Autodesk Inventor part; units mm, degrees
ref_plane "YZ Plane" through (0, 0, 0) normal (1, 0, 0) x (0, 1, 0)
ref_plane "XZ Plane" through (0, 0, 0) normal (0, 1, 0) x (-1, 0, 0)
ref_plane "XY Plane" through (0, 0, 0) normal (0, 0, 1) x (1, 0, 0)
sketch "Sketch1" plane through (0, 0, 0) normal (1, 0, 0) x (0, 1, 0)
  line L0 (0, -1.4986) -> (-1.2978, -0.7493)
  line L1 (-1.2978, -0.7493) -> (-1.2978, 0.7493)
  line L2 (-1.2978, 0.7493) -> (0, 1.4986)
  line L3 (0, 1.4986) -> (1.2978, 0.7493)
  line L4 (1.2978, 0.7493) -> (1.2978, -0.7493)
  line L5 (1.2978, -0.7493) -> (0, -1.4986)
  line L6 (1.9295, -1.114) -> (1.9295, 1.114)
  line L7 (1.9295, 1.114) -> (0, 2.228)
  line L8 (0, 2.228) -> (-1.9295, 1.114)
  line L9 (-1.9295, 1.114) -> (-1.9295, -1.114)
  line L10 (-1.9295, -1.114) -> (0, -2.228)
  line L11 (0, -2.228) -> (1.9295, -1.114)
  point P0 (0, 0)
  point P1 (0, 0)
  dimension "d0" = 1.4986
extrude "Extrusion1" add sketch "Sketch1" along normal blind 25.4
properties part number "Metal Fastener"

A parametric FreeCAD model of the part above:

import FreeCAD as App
import Part
import Sketcher
from FreeCAD import Vector
Q = App.Units.Quantity


def add_polygon(sketch, points):
    """Adds a closed chain of lines whose ends are joined by coincident constraints."""
    first, n = sketch.GeometryCount, len(points)
    for a, b in zip(points, points[1:] + points[:1]):
        sketch.addGeometry(Part.LineSegment(App.Vector(*a, 0), App.Vector(*b, 0)), False)
    for i in range(n):
        sketch.addConstraint(Sketcher.Constraint("Coincident", first + i, 2, first + (i + 1) % n, 1))

doc = App.newDocument("Part")
params = doc.addObject("Spreadsheet::Sheet", "Params")
for row, (alias, value) in enumerate([
    ("sketch1_height", "0.059 in"),
    ("sketch1_length", "0.059 in"),
    ("pad1_length", "1 in"),
], start=1):
    params.set(f"A{row}", alias)
    params.set(f"B{row}", "=" + value)
    params.setAlias(f"B{row}", alias)

body = doc.addObject("PartDesign::Body", "Body")

sketch1 = doc.addObject("Sketcher::SketchObject", "Sketch")
body.addObject(sketch1)
sketch1.AttachmentSupport = (doc.YZ_Plane, [""])
sketch1.MapMode = "FlatFace"
add_polygon(sketch1, [(0, -2.2), (1.9, -1.1), (1.9, 1.1), (0, 2.2), (-1.9, 1.1), (-1.9, -1.1)])
add_polygon(sketch1, [(1.3, -0.7), (0, -1.5), (-1.3, -0.7), (-1.3, 0.7), (0, 1.5), (1.3, 0.7)])
sketch1.addConstraint(Sketcher.Constraint("Vertical", 1))
sketch1.addConstraint(Sketcher.Constraint("Vertical", 4))
sketch1.addConstraint(Sketcher.Constraint("Vertical", 8))
sketch1.addConstraint(Sketcher.Constraint("Vertical", 11))
sketch1.addConstraint(Sketcher.Constraint("Symmetric", 0, 2, 3, 2, -1, 1))
sketch1.addConstraint(Sketcher.Constraint("Symmetric", 2, 2, 5, 2, -1, 1))
sketch1.addConstraint(Sketcher.Constraint("Symmetric", 6, 2, 9, 2, -1, 1))
sketch1.addConstraint(Sketcher.Constraint("Symmetric", 7, 2, 10, 2, -1, 1))
sketch1.addConstraint(Sketcher.Constraint("PointOnObject", 2, 2, -2))
sketch1.addConstraint(Sketcher.Constraint("PointOnObject", 6, 2, -2))
sketch1.addConstraint(Sketcher.Constraint("Parallel", 2, 5))
sketch1.addConstraint(Sketcher.Constraint("Parallel", 3, 6))
sketch1.addConstraint(Sketcher.Constraint("Parallel", 5, 7))
sketch1.addConstraint(Sketcher.Constraint("Parallel", 6, 9))
sketch1.addConstraint(Sketcher.Constraint("Horizontal", 1, 2, 3, 2))
sketch1.addConstraint(Sketcher.Constraint("DistanceY", 8, 1, 8, 2, Q("0.059 in")))
sketch1.addConstraint(Sketcher.Constraint("Distance", 6, Q("0.059 in")))
sketch1.addConstraint(Sketcher.Constraint("DistanceY", 6, 2, -1, 1, Q("0.059 in")))
sketch1.addConstraint(Sketcher.Constraint("DistanceY", 1, 1, 1, 2, Q("2.228 mm")))
sketch1.addConstraint(Sketcher.Constraint("Distance", 0, Q("2.228 mm")))
sketch1.setExpression("Constraints[27]", "Params.sketch1_height")
sketch1.setExpression("Constraints[28]", "Params.sketch1_length")
pad1 = doc.addObject("PartDesign::Pad", "Pad")
body.addObject(pad1)
pad1.Profile = sketch1
pad1.setExpression("Length", "Params.pad1_length")

doc.recompute()
